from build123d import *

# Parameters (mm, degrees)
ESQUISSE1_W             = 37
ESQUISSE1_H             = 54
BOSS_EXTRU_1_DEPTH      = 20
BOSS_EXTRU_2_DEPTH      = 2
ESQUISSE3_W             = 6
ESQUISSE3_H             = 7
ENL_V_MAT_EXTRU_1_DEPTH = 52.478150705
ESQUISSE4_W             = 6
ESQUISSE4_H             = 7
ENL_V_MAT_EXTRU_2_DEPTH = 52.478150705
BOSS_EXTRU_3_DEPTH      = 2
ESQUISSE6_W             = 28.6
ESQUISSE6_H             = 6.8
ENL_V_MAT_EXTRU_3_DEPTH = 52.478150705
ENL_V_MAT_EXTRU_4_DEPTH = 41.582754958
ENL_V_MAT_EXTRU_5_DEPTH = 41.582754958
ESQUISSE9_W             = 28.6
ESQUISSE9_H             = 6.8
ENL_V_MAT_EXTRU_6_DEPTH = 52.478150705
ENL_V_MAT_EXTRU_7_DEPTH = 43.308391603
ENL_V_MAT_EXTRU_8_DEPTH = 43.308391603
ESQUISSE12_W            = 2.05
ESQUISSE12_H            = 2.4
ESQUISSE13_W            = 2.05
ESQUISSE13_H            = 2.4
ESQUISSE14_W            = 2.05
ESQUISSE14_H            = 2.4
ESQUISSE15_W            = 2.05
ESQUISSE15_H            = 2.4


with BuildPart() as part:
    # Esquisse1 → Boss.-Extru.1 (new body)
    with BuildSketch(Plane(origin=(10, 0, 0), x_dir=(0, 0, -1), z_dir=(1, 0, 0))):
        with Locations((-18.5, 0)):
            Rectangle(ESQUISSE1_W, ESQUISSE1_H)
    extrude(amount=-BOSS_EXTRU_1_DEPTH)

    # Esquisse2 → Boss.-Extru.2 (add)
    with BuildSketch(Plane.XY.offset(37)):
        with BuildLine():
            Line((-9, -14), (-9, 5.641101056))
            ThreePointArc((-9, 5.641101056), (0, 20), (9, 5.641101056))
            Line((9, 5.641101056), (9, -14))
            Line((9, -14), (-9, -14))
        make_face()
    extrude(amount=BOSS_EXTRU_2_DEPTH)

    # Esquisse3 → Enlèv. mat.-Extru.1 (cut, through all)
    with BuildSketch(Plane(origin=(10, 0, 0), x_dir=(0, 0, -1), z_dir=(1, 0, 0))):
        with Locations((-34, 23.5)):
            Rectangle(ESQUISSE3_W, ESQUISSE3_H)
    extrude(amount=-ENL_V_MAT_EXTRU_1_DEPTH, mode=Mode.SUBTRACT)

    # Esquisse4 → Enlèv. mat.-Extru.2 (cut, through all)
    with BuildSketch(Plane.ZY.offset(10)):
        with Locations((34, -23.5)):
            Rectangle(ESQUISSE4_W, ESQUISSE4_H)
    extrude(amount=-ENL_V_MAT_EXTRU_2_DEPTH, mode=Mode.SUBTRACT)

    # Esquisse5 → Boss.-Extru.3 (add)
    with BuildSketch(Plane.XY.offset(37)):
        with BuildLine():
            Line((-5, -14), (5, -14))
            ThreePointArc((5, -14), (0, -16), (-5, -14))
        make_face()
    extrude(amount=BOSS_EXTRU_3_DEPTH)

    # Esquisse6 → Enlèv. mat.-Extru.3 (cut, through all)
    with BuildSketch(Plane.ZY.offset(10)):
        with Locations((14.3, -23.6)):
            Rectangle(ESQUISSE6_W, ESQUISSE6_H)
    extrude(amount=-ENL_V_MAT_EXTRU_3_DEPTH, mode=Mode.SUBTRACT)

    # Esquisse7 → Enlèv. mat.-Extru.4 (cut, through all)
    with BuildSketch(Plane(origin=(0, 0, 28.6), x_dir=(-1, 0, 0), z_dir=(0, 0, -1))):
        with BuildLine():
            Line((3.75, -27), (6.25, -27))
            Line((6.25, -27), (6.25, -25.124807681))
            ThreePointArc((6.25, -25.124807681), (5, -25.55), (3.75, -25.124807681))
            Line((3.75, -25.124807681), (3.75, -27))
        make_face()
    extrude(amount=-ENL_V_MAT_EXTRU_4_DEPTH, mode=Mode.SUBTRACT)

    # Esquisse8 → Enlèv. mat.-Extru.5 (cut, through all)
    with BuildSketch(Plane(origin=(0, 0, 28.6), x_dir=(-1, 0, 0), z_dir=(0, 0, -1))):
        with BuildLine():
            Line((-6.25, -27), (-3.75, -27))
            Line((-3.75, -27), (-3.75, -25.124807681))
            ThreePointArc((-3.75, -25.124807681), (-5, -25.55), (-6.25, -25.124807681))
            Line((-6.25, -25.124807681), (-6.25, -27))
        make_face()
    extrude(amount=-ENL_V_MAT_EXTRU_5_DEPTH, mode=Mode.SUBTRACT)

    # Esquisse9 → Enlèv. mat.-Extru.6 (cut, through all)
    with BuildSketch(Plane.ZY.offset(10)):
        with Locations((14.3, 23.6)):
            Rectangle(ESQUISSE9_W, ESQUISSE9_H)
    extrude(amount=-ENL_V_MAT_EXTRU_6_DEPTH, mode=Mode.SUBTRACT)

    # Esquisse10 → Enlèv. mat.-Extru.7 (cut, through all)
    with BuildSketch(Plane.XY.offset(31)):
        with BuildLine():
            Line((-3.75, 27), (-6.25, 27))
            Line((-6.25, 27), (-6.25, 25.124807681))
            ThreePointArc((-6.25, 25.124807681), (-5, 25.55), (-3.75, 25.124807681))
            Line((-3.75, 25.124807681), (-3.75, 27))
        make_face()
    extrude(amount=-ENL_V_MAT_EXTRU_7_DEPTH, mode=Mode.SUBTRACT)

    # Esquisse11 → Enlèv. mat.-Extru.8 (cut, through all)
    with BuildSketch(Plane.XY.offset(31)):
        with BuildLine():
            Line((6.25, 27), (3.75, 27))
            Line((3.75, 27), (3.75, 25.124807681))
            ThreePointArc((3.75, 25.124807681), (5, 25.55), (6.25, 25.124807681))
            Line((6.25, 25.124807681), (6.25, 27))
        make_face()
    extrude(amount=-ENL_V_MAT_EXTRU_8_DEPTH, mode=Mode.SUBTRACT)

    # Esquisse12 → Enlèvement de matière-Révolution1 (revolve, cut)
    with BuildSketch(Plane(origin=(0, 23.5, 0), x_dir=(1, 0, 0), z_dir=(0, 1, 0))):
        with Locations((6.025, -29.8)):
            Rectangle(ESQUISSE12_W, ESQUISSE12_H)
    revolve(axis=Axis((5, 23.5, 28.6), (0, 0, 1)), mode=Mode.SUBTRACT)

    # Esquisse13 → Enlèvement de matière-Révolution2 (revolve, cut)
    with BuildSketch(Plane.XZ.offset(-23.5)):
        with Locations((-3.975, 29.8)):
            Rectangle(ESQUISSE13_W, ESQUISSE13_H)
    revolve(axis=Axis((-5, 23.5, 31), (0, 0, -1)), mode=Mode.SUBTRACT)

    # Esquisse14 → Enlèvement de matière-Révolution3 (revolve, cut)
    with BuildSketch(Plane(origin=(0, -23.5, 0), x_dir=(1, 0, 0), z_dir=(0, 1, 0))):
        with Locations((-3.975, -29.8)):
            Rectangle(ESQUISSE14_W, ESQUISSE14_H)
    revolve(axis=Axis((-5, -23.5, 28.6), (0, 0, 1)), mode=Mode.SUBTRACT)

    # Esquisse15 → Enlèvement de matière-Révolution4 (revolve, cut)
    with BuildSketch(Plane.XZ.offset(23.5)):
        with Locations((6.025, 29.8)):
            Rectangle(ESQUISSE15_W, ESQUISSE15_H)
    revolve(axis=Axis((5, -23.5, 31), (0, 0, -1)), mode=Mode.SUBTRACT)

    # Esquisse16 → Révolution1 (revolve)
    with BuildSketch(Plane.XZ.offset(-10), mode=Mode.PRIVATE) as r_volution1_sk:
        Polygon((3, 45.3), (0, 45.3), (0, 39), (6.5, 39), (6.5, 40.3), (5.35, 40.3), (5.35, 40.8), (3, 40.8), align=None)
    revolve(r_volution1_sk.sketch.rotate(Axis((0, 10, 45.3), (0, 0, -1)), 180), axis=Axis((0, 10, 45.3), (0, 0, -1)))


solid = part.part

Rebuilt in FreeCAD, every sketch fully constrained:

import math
import FreeCAD as App
import Part
import Sketcher
Q = App.Units.Quantity


def add_polygon(sketch, points):
    """Adds a closed chain of lines whose ends are joined by coincident constraints."""
    first, n = sketch.GeometryCount, len(points)
    for a, b in zip(points, points[1:] + points[:1]):
        sketch.addGeometry(Part.LineSegment(App.Vector(*a, 0), App.Vector(*b, 0)), False)
    for i in range(n):
        sketch.addConstraint(Sketcher.Constraint("Coincident", first + i, 2, first + (i + 1) % n, 1))

doc = App.newDocument("Part")
body = doc.addObject("PartDesign::Body", "Body")

# Sketch on YZ plane
sketch1 = body.newObject("Sketcher::SketchObject", "Sketch")
sketch1.AttachmentSupport = (doc.getObject("YZ_Plane"), [""])
sketch1.MapMode = "FlatFace"
sketch1.AttachmentOffset = App.Placement(App.Vector(0, 0, 10), App.Rotation())
add_polygon(sketch1, [(27, 37), (-27, 37), (-27, 0), (27, 0)])  # lines 0-3
sketch1.addConstraint([
    Sketcher.Constraint("Horizontal", 0),
    Sketcher.Constraint("Vertical", 1),
    Sketcher.Constraint("Horizontal", 2),
    Sketcher.Constraint("Vertical", 3),
    Sketcher.Constraint("Symmetric", 1, 2, 2, 2, -1, 1),
    Sketcher.Constraint("DistanceX", 0, 2, 0, 1, Q("54 mm")),
    Sketcher.Constraint("DistanceY", 1, 2, 1, 1, Q("37 mm")),
])
pad1 = body.newObject("PartDesign::Pad", "Pad")
pad1.Profile = sketch1
pad1.Length = 20
pad1.Reversed = True

# Sketch on XY plane
sketch2 = body.newObject("Sketcher::SketchObject", "Sketch001")
sketch2.AttachmentSupport = (doc.getObject("XY_Plane"), [""])
sketch2.MapMode = "FlatFace"
sketch2.AttachmentOffset = App.Placement(App.Vector(0, 0, 37), App.Rotation())
sketch2.addGeometry([
    Part.LineSegment(App.Vector(-9, 6, 0), App.Vector(-9, -14, 0)),
    Part.LineSegment(App.Vector(-9, -14, 0), App.Vector(9, -14, 0)),
    Part.LineSegment(App.Vector(9, -14, 0), App.Vector(9, 6, 0)),
    Part.ArcOfCircle(Part.Circle(App.Vector(0, 10, 0), App.Vector(0, 0, 1), 10), math.radians(-26), math.radians(206)),
], False)
sketch2.addConstraint([
    Sketcher.Constraint("Coincident", 0, 2, 1, 1),
    Sketcher.Constraint("Coincident", 1, 2, 2, 1),
    Sketcher.Constraint("Coincident", 2, 2, 3, 1),
    Sketcher.Constraint("Coincident", 3, 2, 0, 1),
    Sketcher.Constraint("Vertical", 0),
    Sketcher.Constraint("Horizontal", 1),
    Sketcher.Constraint("Vertical", 2),
    Sketcher.Constraint("Symmetric", 2, 2, 3, 2, -2),
    Sketcher.Constraint("Radius", 3, Q("10 mm")),
    Sketcher.Constraint("DistanceX", 1, 1, 1, 2, Q("18 mm")),
    Sketcher.Constraint("DistanceY", -1, 1, 3, 3, Q("10 mm")),
    Sketcher.Constraint("DistanceY", 0, 2, -1, 1, Q("14 mm")),
])
pad2 = body.newObject("PartDesign::Pad", "Pad001")
pad2.Profile = sketch2
pad2.Length = 2

# Sketch on YZ plane
sketch3 = body.newObject("Sketcher::SketchObject", "Sketch002")
sketch3.AttachmentSupport = (doc.getObject("YZ_Plane"), [""])
sketch3.MapMode = "FlatFace"
sketch3.AttachmentOffset = App.Placement(App.Vector(0, 0, 10), App.Rotation())
add_polygon(sketch3, [(27, 37), (20, 37), (20, 31), (27, 31)])  # lines 0-3
sketch3.addConstraint([
    Sketcher.Constraint("Horizontal", 0),
    Sketcher.Constraint("Vertical", 1),
    Sketcher.Constraint("Horizontal", 2),
    Sketcher.Constraint("Vertical", 3),
    Sketcher.Constraint("DistanceX", 0, 2, 0, 1, Q("7 mm")),
    Sketcher.Constraint("DistanceY", 1, 2, 1, 1, Q("6 mm")),
    Sketcher.Constraint("DistanceX", -1, 1, 0, 2, Q("20 mm")),
    Sketcher.Constraint("DistanceY", -1, 1, 0, 2, Q("37 mm")),
])
pocket1 = body.newObject("PartDesign::Pocket", "Pocket")
pocket1.Profile = sketch3
pocket1.Type = "ThroughAll"

# Sketch on YZ plane
sketch4 = body.newObject("Sketcher::SketchObject", "Sketch003")
sketch4.AttachmentSupport = (doc.getObject("YZ_Plane"), [""])
sketch4.MapMode = "FlatFace"
sketch4.AttachmentOffset = App.Placement(App.Vector(0, 0, -10), App.Rotation())
add_polygon(sketch4, [(-20, 31), (-27, 31), (-27, 37), (-20, 37)])  # lines 0-3
sketch4.addConstraint([
    Sketcher.Constraint("Horizontal", 0),
    Sketcher.Constraint("Vertical", 1),
    Sketcher.Constraint("Horizontal", 2),
    Sketcher.Constraint("Vertical", 3),
    Sketcher.Constraint("DistanceX", 0, 2, 0, 1, Q("7 mm")),
    Sketcher.Constraint("DistanceY", 1, 1, 1, 2, Q("6 mm")),
    Sketcher.Constraint("DistanceX", 0, 2, -1, 1, Q("27 mm")),
    Sketcher.Constraint("DistanceY", -1, 1, 0, 2, Q("31 mm")),
])
pocket2 = body.newObject("PartDesign::Pocket", "Pocket001")
pocket2.Profile = sketch4
pocket2.Type = "ThroughAll"
pocket2.Reversed = True

# Sketch on XY plane
sketch5 = body.newObject("Sketcher::SketchObject", "Sketch004")
sketch5.AttachmentSupport = (doc.getObject("XY_Plane"), [""])
sketch5.MapMode = "FlatFace"
sketch5.AttachmentOffset = App.Placement(App.Vector(0, 0, 37), App.Rotation())
sketch5.addGeometry([
    Part.LineSegment(App.Vector(5, -14, 0), App.Vector(-5, -14, 0)),
    Part.ArcOfCircle(Part.Circle(App.Vector(0, -9, 0), App.Vector(0, 0, 1), 7), math.radians(-134), math.radians(-46)),
], False)
sketch5.addConstraint([
    Sketcher.Constraint("Coincident", 0, 1, 1, 2),
    Sketcher.Constraint("Coincident", 1, 1, 0, 2),
    Sketcher.Constraint("Horizontal", 0),
    Sketcher.Constraint("PointOnObject", 1, 3, -2),
    Sketcher.Constraint("DistanceX", 0, 2, 0, 1, Q("10 mm")),
    Sketcher.Constraint("Radius", 1, Q("7.25 mm")),
    Sketcher.Constraint("DistanceY", 0, 1, -1, 1, Q("14 mm")),
])
pad3 = body.newObject("PartDesign::Pad", "Pad002")
pad3.Profile = sketch5
pad3.Length = 2

# Sketch on YZ plane
sketch6 = body.newObject("Sketcher::SketchObject", "Sketch005")
sketch6.AttachmentSupport = (doc.getObject("YZ_Plane"), [""])
sketch6.MapMode = "FlatFace"
sketch6.AttachmentOffset = App.Placement(App.Vector(0, 0, -10), App.Rotation())
add_polygon(sketch6, [(-20, 0), (-27, 0), (-27, 29), (-20, 29)])  # lines 0-3
sketch6.addConstraint([
    Sketcher.Constraint("Horizontal", 0),
    Sketcher.Constraint("Vertical", 1),
    Sketcher.Constraint("Horizontal", 2),
    Sketcher.Constraint("Vertical", 3),
    Sketcher.Constraint("PointOnObject", 0, 2, -1),
    Sketcher.Constraint("DistanceX", 0, 2, 0, 1, Q("6.8 mm")),
    Sketcher.Constraint("DistanceY", 1, 1, 1, 2, Q("28.6 mm")),
    Sketcher.Constraint("DistanceX", 0, 2, -1, 1, Q("27 mm")),
])
pocket3 = body.newObject("PartDesign::Pocket", "Pocket002")
pocket3.Profile = sketch6
pocket3.Type = "ThroughAll"
pocket3.Reversed = True

# Sketch on XY plane
sketch7 = body.newObject("Sketcher::SketchObject", "Sketch006")
sketch7.AttachmentSupport = (doc.getObject("XY_Plane"), [""])
sketch7.MapMode = "FlatFace"
sketch7.AttachmentOffset = App.Placement(App.Vector(0, 0, 28.6), App.Rotation())
sketch7.addGeometry([
    Part.LineSegment(App.Vector(-3.8, -27, 0), App.Vector(-6.2, -27, 0)),
    Part.LineSegment(App.Vector(-6.2, -27, 0), App.Vector(-6.2, -25.1, 0)),
    Part.ArcOfCircle(Part.Circle(App.Vector(-5, -23.5, 0), App.Vector(0, 0, 1), 2), math.radians(-128), math.radians(-52)),
    Part.LineSegment(App.Vector(-3.8, -25.1, 0), App.Vector(-3.8, -27, 0)),
], False)
sketch7.addConstraint([
    Sketcher.Constraint("Coincident", 0, 2, 1, 1),
    Sketcher.Constraint("Coincident", 1, 2, 2, 1),
    Sketcher.Constraint("Coincident", 2, 2, 3, 1),
    Sketcher.Constraint("Coincident", 3, 2, 0, 1),
    Sketcher.Constraint("Horizontal", 0),
    Sketcher.Constraint("Vertical", 1),
    Sketcher.Constraint("Vertical", 3),
    Sketcher.Constraint("Horizontal", 1, 2, 2, 2),
    Sketcher.Constraint("Radius", 2, Q("2.05 mm")),
    Sketcher.Constraint("DistanceX", 0, 2, 0, 1, Q("2.5 mm")),
    Sketcher.Constraint("DistanceX", 2, 3, -1, 1, Q("5 mm")),
    Sketcher.Constraint("DistanceY", 0, 2, -1, 1, Q("27 mm")),
    Sketcher.Constraint("DistanceY", 2, 3, -1, 1, Q("23.5 mm")),
])
pocket4 = body.newObject("PartDesign::Pocket", "Pocket003")
pocket4.Profile = sketch7
pocket4.Type = "ThroughAll"
pocket4.Reversed = True

# Sketch on XY plane
sketch8 = body.newObject("Sketcher::SketchObject", "Sketch007")
sketch8.AttachmentSupport = (doc.getObject("XY_Plane"), [""])
sketch8.MapMode = "FlatFace"
sketch8.AttachmentOffset = App.Placement(App.Vector(0, 0, 28.6), App.Rotation())
sketch8.addGeometry([
    Part.LineSegment(App.Vector(6.2, -27, 0), App.Vector(3.8, -27, 0)),
    Part.LineSegment(App.Vector(3.8, -27, 0), App.Vector(3.8, -25.1, 0)),
    Part.ArcOfCircle(Part.Circle(App.Vector(5, -23.5, 0), App.Vector(0, 0, 1), 2), math.radians(-128), math.radians(-52)),
    Part.LineSegment(App.Vector(6.2, -25.1, 0), App.Vector(6.2, -27, 0)),
], False)
sketch8.addConstraint([
    Sketcher.Constraint("Coincident", 0, 2, 1, 1),
    Sketcher.Constraint("Coincident", 1, 2, 2, 1),
    Sketcher.Constraint("Coincident", 2, 2, 3, 1),
    Sketcher.Constraint("Coincident", 3, 2, 0, 1),
    Sketcher.Constraint("Horizontal", 0),
    Sketcher.Constraint("Vertical", 1),
    Sketcher.Constraint("Vertical", 3),
    Sketcher.Constraint("Horizontal", 1, 2, 2, 2),
    Sketcher.Constraint("Radius", 2, Q("2.05 mm")),
    Sketcher.Constraint("DistanceX", 0, 2, 0, 1, Q("2.5 mm")),
    Sketcher.Constraint("DistanceX", -1, 1, 2, 3, Q("5 mm")),
    Sketcher.Constraint("DistanceY", 0, 2, -1, 1, Q("27 mm")),
    Sketcher.Constraint("DistanceY", 2, 3, -1, 1, Q("23.5 mm")),
])
pocket5 = body.newObject("PartDesign::Pocket", "Pocket004")
pocket5.Profile = sketch8
pocket5.Type = "ThroughAll"
pocket5.Reversed = True

# Sketch on YZ plane
sketch9 = body.newObject("Sketcher::SketchObject", "Sketch008")
sketch9.AttachmentSupport = (doc.getObject("YZ_Plane"), [""])
sketch9.MapMode = "FlatFace"
sketch9.AttachmentOffset = App.Placement(App.Vector(0, 0, -10), App.Rotation())
add_polygon(sketch9, [(27, 0), (20, 0), (20, 29), (27, 29)])  # lines 0-3
sketch9.addConstraint([
    Sketcher.Constraint("Horizontal", 0),
    Sketcher.Constraint("Vertical", 1),
    Sketcher.Constraint("Horizontal", 2),
    Sketcher.Constraint("Vertical", 3),
    Sketcher.Constraint("PointOnObject", 0, 2, -1),
    Sketcher.Constraint("DistanceX", 0, 2, 0, 1, Q("6.8 mm")),
    Sketcher.Constraint("DistanceY", 1, 1, 1, 2, Q("28.6 mm")),
    Sketcher.Constraint("DistanceX", -1, 1, 2, 2, Q("27 mm")),
])
pocket6 = body.newObject("PartDesign::Pocket", "Pocket005")
pocket6.Profile = sketch9
pocket6.Type = "ThroughAll"
pocket6.Reversed = True

# Sketch on XY plane
sketch10 = body.newObject("Sketcher::SketchObject", "Sketch009")
sketch10.AttachmentSupport = (doc.getObject("XY_Plane"), [""])
sketch10.MapMode = "FlatFace"
sketch10.AttachmentOffset = App.Placement(App.Vector(0, 0, 31), App.Rotation())
sketch10.addGeometry([
    Part.LineSegment(App.Vector(-3.8, 27, 0), App.Vector(-6.2, 27, 0)),
    Part.LineSegment(App.Vector(-6.2, 27, 0), App.Vector(-6.2, 25.1, 0)),
    Part.ArcOfCircle(Part.Circle(App.Vector(-5, 23.5, 0), App.Vector(0, 0, 1), 2), math.radians(52), math.radians(128)),
    Part.LineSegment(App.Vector(-3.8, 25.1, 0), App.Vector(-3.8, 27, 0)),
], False)
sketch10.addConstraint([
    Sketcher.Constraint("Coincident", 0, 2, 1, 1),
    Sketcher.Constraint("Coincident", 1, 2, 2, 2),
    Sketcher.Constraint("Coincident", 2, 1, 3, 1),
    Sketcher.Constraint("Coincident", 3, 2, 0, 1),
    Sketcher.Constraint("Horizontal", 0),
    Sketcher.Constraint("Vertical", 1),
    Sketcher.Constraint("Vertical", 3),
    Sketcher.Constraint("Horizontal", 1, 2, 2, 1),
    Sketcher.Constraint("Radius", 2, Q("2.05 mm")),
    Sketcher.Constraint("DistanceX", 0, 2, 0, 1, Q("2.5 mm")),
    Sketcher.Constraint("DistanceX", 2, 3, -1, 1, Q("5 mm")),
    Sketcher.Constraint("DistanceY", -1, 1, 0, 2, Q("27 mm")),
    Sketcher.Constraint("DistanceY", -1, 1, 2, 3, Q("23.5 mm")),
])
pocket7 = body.newObject("PartDesign::Pocket", "Pocket006")
pocket7.Profile = sketch10
pocket7.Type = "ThroughAll"

# Sketch on XY plane
sketch11 = body.newObject("Sketcher::SketchObject", "Sketch010")
sketch11.AttachmentSupport = (doc.getObject("XY_Plane"), [""])
sketch11.MapMode = "FlatFace"
sketch11.AttachmentOffset = App.Placement(App.Vector(0, 0, 31), App.Rotation())
sketch11.addGeometry([
    Part.LineSegment(App.Vector(6.2, 27, 0), App.Vector(3.8, 27, 0)),
    Part.LineSegment(App.Vector(3.8, 27, 0), App.Vector(3.8, 25.1, 0)),
    Part.ArcOfCircle(Part.Circle(App.Vector(5, 23.5, 0), App.Vector(0, 0, 1), 2), math.radians(52), math.radians(128)),
    Part.LineSegment(App.Vector(6.2, 25.1, 0), App.Vector(6.2, 27, 0)),
], False)
sketch11.addConstraint([
    Sketcher.Constraint("Coincident", 0, 2, 1, 1),
    Sketcher.Constraint("Coincident", 1, 2, 2, 2),
    Sketcher.Constraint("Coincident", 2, 1, 3, 1),
    Sketcher.Constraint("Coincident", 3, 2, 0, 1),
    Sketcher.Constraint("Horizontal", 0),
    Sketcher.Constraint("Vertical", 1),
    Sketcher.Constraint("Vertical", 3),
    Sketcher.Constraint("Horizontal", 1, 2, 2, 1),
    Sketcher.Constraint("Radius", 2, Q("2.05 mm")),
    Sketcher.Constraint("DistanceX", 0, 2, 0, 1, Q("2.5 mm")),
    Sketcher.Constraint("DistanceX", -1, 1, 2, 3, Q("5 mm")),
    Sketcher.Constraint("DistanceY", -1, 1, 0, 2, Q("27 mm")),
    Sketcher.Constraint("DistanceY", -1, 1, 2, 3, Q("23.5 mm")),
])
pocket8 = body.newObject("PartDesign::Pocket", "Pocket007")
pocket8.Profile = sketch11
pocket8.Type = "ThroughAll"

# Sketch on XZ plane
sketch12 = body.newObject("Sketcher::SketchObject", "Sketch011")
sketch12.AttachmentSupport = (doc.getObject("XZ_Plane"), [""])
sketch12.MapMode = "FlatFace"
sketch12.AttachmentOffset = App.Placement(App.Vector(0, 0, -23.5), App.Rotation())
add_polygon(sketch12, [(5, 28.6), (5, 31), (7, 31), (7, 28.6)])  # lines 0-3
sketch12.addGeometry(Part.LineSegment(App.Vector(5, 28.6, 0), App.Vector(5, 31, 0)), True)  # axis
sketch12.addConstraint([
    Sketcher.Constraint("Vertical", 0),
    Sketcher.Constraint("Horizontal", 1),
    Sketcher.Constraint("Vertical", 2),
    Sketcher.Constraint("Horizontal", 3),
    Sketcher.Constraint("Vertical", 4),
    Sketcher.Constraint("Coincident", 4, 1, 3, 2),
    Sketcher.Constraint("Horizontal", 1, 2, 4, 2),
    Sketcher.Constraint("DistanceY", 0, 1, 0, 2, Q("2.4 mm")),
    Sketcher.Constraint("DistanceX", -1, 1, 0, 2, Q("5 mm")),
    Sketcher.Constraint("DistanceY", -1, 1, 0, 2, Q("31 mm")),
    Sketcher.Constraint("DistanceX", 1, 1, 1, 2, Q("2.05 mm")),
])
groove = body.newObject("PartDesign::Groove", "Groove")
groove.Profile = sketch12
groove.ReferenceAxis = (sketch12, ["Axis0"])
groove.Angle = 360

# Sketch on XZ plane
sketch13 = body.newObject("Sketcher::SketchObject", "Sketch012")
sketch13.AttachmentSupport = (doc.getObject("XZ_Plane"), [""])
sketch13.MapMode = "FlatFace"
sketch13.AttachmentOffset = App.Placement(App.Vector(0, 0, -23.5), App.Rotation())
add_polygon(sketch13, [(-5, 31), (-5, 28.6), (-3, 28.6), (-3, 31)])  # lines 0-3
sketch13.addGeometry(Part.LineSegment(App.Vector(-5, 31, 0), App.Vector(-5, 28.6, 0)), True)  # axis
sketch13.addConstraint([
    Sketcher.Constraint("Vertical", 0),
    Sketcher.Constraint("Horizontal", 1),
    Sketcher.Constraint("Vertical", 2),
    Sketcher.Constraint("Horizontal", 3),
    Sketcher.Constraint("Vertical", 4),
    Sketcher.Constraint("Coincident", 4, 1, 3, 2),
    Sketcher.Constraint("Horizontal", 1, 2, 4, 2),
    Sketcher.Constraint("DistanceY", 0, 2, 0, 1, Q("2.4 mm")),
    Sketcher.Constraint("DistanceX", 0, 2, -1, 1, Q("5 mm")),
    Sketcher.Constraint("DistanceY", -1, 1, 2, 2, Q("31 mm")),
    Sketcher.Constraint("DistanceX", 1, 1, 1, 2, Q("2.05 mm")),
])
groove2 = body.newObject("PartDesign::Groove", "Groove001")
groove2.Profile = sketch13
groove2.ReferenceAxis = (sketch13, ["Axis0"])
groove2.Angle = 360

# Sketch on XZ plane
sketch14 = body.newObject("Sketcher::SketchObject", "Sketch013")
sketch14.AttachmentSupport = (doc.getObject("XZ_Plane"), [""])
sketch14.MapMode = "FlatFace"
sketch14.AttachmentOffset = App.Placement(App.Vector(0, 0, 23.5), App.Rotation())
add_polygon(sketch14, [(-5, 28.6), (-5, 31), (-3, 31), (-3, 28.6)])  # lines 0-3
sketch14.addGeometry(Part.LineSegment(App.Vector(-5, 28.6, 0), App.Vector(-5, 31, 0)), True)  # axis
sketch14.addConstraint([
    Sketcher.Constraint("Vertical", 0),
    Sketcher.Constraint("Horizontal", 1),
    Sketcher.Constraint("Vertical", 2),
    Sketcher.Constraint("Horizontal", 3),
    Sketcher.Constraint("Vertical", 4),
    Sketcher.Constraint("Coincident", 4, 1, 3, 2),
    Sketcher.Constraint("Horizontal", 1, 2, 4, 2),
    Sketcher.Constraint("DistanceY", 0, 1, 0, 2, Q("2.4 mm")),
    Sketcher.Constraint("DistanceX", 0, 2, -1, 1, Q("5 mm")),
    Sketcher.Constraint("DistanceY", -1, 1, 0, 2, Q("31 mm")),
    Sketcher.Constraint("DistanceX", 1, 1, 1, 2, Q("2.05 mm")),
])
groove3 = body.newObject("PartDesign::Groove", "Groove002")
groove3.Profile = sketch14
groove3.ReferenceAxis = (sketch14, ["Axis0"])
groove3.Angle = 360

# Sketch on XZ plane
sketch15 = body.newObject("Sketcher::SketchObject", "Sketch014")
sketch15.AttachmentSupport = (doc.getObject("XZ_Plane"), [""])
sketch15.MapMode = "FlatFace"
sketch15.AttachmentOffset = App.Placement(App.Vector(0, 0, 23.5), App.Rotation())
add_polygon(sketch15, [(5, 31), (5, 28.6), (7, 28.6), (7, 31)])  # lines 0-3
sketch15.addGeometry(Part.LineSegment(App.Vector(5, 31, 0), App.Vector(5, 28.6, 0)), True)  # axis
sketch15.addConstraint([
    Sketcher.Constraint("Vertical", 0),
    Sketcher.Constraint("Horizontal", 1),
    Sketcher.Constraint("Vertical", 2),
    Sketcher.Constraint("Horizontal", 3),
    Sketcher.Constraint("Vertical", 4),
    Sketcher.Constraint("Coincident", 4, 1, 3, 2),
    Sketcher.Constraint("Horizontal", 1, 2, 4, 2),
    Sketcher.Constraint("DistanceY", 0, 2, 0, 1, Q("2.4 mm")),
    Sketcher.Constraint("DistanceX", -1, 1, 0, 2, Q("5 mm")),
    Sketcher.Constraint("DistanceY", -1, 1, 2, 2, Q("31 mm")),
    Sketcher.Constraint("DistanceX", 1, 1, 1, 2, Q("2.05 mm")),
])
groove4 = body.newObject("PartDesign::Groove", "Groove003")
groove4.Profile = sketch15
groove4.ReferenceAxis = (sketch15, ["Axis0"])
groove4.Angle = 360

# Sketch on XZ plane
sketch16 = body.newObject("Sketcher::SketchObject", "Sketch015")
sketch16.AttachmentSupport = (doc.getObject("XZ_Plane"), [""])
sketch16.MapMode = "FlatFace"
sketch16.AttachmentOffset = App.Placement(App.Vector(0, 0, -10), App.Rotation())
add_polygon(sketch16, [(3, 45.3), (0, 45.3), (0, 39), (6.5, 39), (6.5, 40.3), (5.3, 40.3), (5.3, 40.8), (3, 40.8)])  # lines 0-7
sketch16.addConstraint([
    Sketcher.Constraint("Horizontal", 0),
    Sketcher.Constraint("Vertical", 1),
    Sketcher.Constraint("Horizontal", 2),
    Sketcher.Constraint("Vertical", 3),
    Sketcher.Constraint("Horizontal", 4),
    Sketcher.Constraint("Vertical", 5),
    Sketcher.Constraint("Horizontal", 6),
    Sketcher.Constraint("Vertical", 7),
    Sketcher.Constraint("PointOnObject", 0, 2, -2),
    Sketcher.Constraint("DistanceX", 0, 2, 0, 1, Q("3 mm")),
    Sketcher.Constraint("DistanceX", 2, 1, 2, 2, Q("6.5 mm")),
    Sketcher.Constraint("DistanceY", 1, 2, 1, 1, Q("6.3 mm")),
    Sketcher.Constraint("DistanceY", 3, 1, 3, 2, Q("1.3 mm")),
    Sketcher.Constraint("DistanceY", 5, 1, 5, 2, Q("0.5 mm")),
    Sketcher.Constraint("DistanceY", -1, 1, 1, 2, Q("39 mm")),
    Sketcher.Constraint("DistanceX", 4, 2, 4, 1, Q("1.15 mm")),
])
revolution = body.newObject("PartDesign::Revolution", "Revolution")
revolution.Profile = sketch16
revolution.ReferenceAxis = (sketch16, ["V_Axis"])
revolution.Angle = 360

doc.recompute()
